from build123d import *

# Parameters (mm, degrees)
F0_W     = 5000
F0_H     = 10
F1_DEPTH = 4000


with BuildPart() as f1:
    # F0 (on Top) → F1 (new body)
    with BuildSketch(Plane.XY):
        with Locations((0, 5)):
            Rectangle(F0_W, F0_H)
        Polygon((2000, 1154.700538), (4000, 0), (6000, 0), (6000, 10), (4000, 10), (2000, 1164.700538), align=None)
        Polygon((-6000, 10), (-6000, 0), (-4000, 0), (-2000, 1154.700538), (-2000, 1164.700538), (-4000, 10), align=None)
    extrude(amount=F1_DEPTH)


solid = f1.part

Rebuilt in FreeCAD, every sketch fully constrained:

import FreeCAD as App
import Part
import Sketcher

V = App.Vector
Q = App.Units.Quantity

doc = App.newDocument("Part")
params = doc.addObject("Spreadsheet::Sheet", "Params")
for row, (alias, value) in enumerate([
    ("sketch1_width", "5000 mm"),
    ("sketch1_width2", "2000 mm"),
    ("sketch1_height", "10 mm"),
    ("pad1_length", "4000 mm"),
], start=1):
    params.set(f"A{row}", alias)
    params.set(f"B{row}", "=" + value)
    params.setAlias(f"B{row}", alias)

body = doc.addObject("PartDesign::Body", "Body")
body.AllowCompound = True

sketch1 = doc.addObject("Sketcher::SketchObject", "Sketch")
body.addObject(sketch1)
sketch1.AttachmentSupport = (doc.XY_Plane, [""])
sketch1.MapMode = "FlatFace"
sketch1.addGeometry([
    Part.LineSegment(V(-2500, 10, 0), V(-2500, 0, 0)),
    Part.LineSegment(V(-2500, 0, 0), V(2500, 0, 0)),
    Part.LineSegment(V(2500, 0, 0), V(2500, 10, 0)),
    Part.LineSegment(V(2500, 10, 0), V(-2500, 10, 0)),
    Part.LineSegment(V(2000, 1155, 0), V(4000, 0, 0)),
    Part.LineSegment(V(4000, 0, 0), V(6000, 0, 0)),
    Part.LineSegment(V(6000, 0, 0), V(6000, 10, 0)),
    Part.LineSegment(V(6000, 10, 0), V(4000, 10, 0)),
    Part.LineSegment(V(4000, 10, 0), V(2000, 1165, 0)),
    Part.LineSegment(V(2000, 1165, 0), V(2000, 1155, 0)),
    Part.LineSegment(V(-6000, 10, 0), V(-6000, 0, 0)),
    Part.LineSegment(V(-6000, 0, 0), V(-4000, 0, 0)),
    Part.LineSegment(V(-4000, 0, 0), V(-2000, 1155, 0)),
    Part.LineSegment(V(-2000, 1155, 0), V(-2000, 1165, 0)),
    Part.LineSegment(V(-2000, 1165, 0), V(-4000, 10, 0)),
    Part.LineSegment(V(-4000, 10, 0), V(-6000, 10, 0)),
], False)
sketch1.addConstraint([
    Sketcher.Constraint("Coincident", 0, 2, 1, 1),
    Sketcher.Constraint("Coincident", 1, 2, 2, 1),
    Sketcher.Constraint("Coincident", 2, 2, 3, 1),
    Sketcher.Constraint("Coincident", 3, 2, 0, 1),
    Sketcher.Constraint("Coincident", 4, 2, 5, 1),
    Sketcher.Constraint("Coincident", 5, 2, 6, 1),
    Sketcher.Constraint("Coincident", 6, 2, 7, 1),
    Sketcher.Constraint("Coincident", 7, 2, 8, 1),
    Sketcher.Constraint("Coincident", 8, 2, 9, 1),
    Sketcher.Constraint("Coincident", 9, 2, 4, 1),
    Sketcher.Constraint("Coincident", 10, 2, 11, 1),
    Sketcher.Constraint("Coincident", 11, 2, 12, 1),
    Sketcher.Constraint("Coincident", 12, 2, 13, 1),
    Sketcher.Constraint("Coincident", 13, 2, 14, 1),
    Sketcher.Constraint("Coincident", 14, 2, 15, 1),
    Sketcher.Constraint("Coincident", 15, 2, 10, 1),
    Sketcher.Constraint("Vertical", 0),
    Sketcher.Constraint("Horizontal", 1),
    Sketcher.Constraint("Vertical", 2),
    Sketcher.Constraint("Horizontal", 3),
    Sketcher.Constraint("Horizontal", 5),
    Sketcher.Constraint("Vertical", 6),
    Sketcher.Constraint("Horizontal", 7),
    Sketcher.Constraint("Vertical", 9),
    Sketcher.Constraint("Vertical", 10),
    Sketcher.Constraint("Horizontal", 11),
    Sketcher.Constraint("Vertical", 13),
    Sketcher.Constraint("Horizontal", 15),
    Sketcher.Constraint("Symmetric", 0, 2, 1, 2, -1, 1),
    Sketcher.Constraint("Symmetric", 5, 2, 10, 2, -1, 1),
    Sketcher.Constraint("Symmetric", 4, 2, 11, 2, -2),
    Sketcher.Constraint("Symmetric", 9, 2, 12, 2, -2),
    Sketcher.Constraint("Symmetric", 7, 2, 14, 2, -2),
    Sketcher.Constraint("Parallel", 4, 8),
    Sketcher.Constraint("Parallel", 12, 14),
    Sketcher.Constraint("Horizontal", 3, 2, 6, 2),
    Sketcher.Constraint("Vertical", 4, 2, 7, 2),
    Sketcher.Constraint("DistanceX", 1, 1, 1, 2, 5000.0),
    Sketcher.Constraint("DistanceX", 5, 1, 5, 2, 2000.0),
    Sketcher.Constraint("DistanceY", 0, 2, 0, 1, 10.0),
    Sketcher.Constraint("Angle", 4, Q("-30 deg")),
    Sketcher.Constraint("DistanceX", -1, 1, 4, 2, 4000.0),
    Sketcher.Constraint("DistanceX", -1, 1, 8, 2, 2000.0),
])
sketch1.setExpression("Constraints[37]", "Params.sketch1_width")
sketch1.setExpression("Constraints[38]", "Params.sketch1_width2")
sketch1.setExpression("Constraints[39]", "Params.sketch1_height")
pad1 = doc.addObject("PartDesign::Pad", "Pad")
body.addObject(pad1)
pad1.Profile = sketch1
pad1.setExpression("Length", "Params.pad1_length")

doc.recompute()
